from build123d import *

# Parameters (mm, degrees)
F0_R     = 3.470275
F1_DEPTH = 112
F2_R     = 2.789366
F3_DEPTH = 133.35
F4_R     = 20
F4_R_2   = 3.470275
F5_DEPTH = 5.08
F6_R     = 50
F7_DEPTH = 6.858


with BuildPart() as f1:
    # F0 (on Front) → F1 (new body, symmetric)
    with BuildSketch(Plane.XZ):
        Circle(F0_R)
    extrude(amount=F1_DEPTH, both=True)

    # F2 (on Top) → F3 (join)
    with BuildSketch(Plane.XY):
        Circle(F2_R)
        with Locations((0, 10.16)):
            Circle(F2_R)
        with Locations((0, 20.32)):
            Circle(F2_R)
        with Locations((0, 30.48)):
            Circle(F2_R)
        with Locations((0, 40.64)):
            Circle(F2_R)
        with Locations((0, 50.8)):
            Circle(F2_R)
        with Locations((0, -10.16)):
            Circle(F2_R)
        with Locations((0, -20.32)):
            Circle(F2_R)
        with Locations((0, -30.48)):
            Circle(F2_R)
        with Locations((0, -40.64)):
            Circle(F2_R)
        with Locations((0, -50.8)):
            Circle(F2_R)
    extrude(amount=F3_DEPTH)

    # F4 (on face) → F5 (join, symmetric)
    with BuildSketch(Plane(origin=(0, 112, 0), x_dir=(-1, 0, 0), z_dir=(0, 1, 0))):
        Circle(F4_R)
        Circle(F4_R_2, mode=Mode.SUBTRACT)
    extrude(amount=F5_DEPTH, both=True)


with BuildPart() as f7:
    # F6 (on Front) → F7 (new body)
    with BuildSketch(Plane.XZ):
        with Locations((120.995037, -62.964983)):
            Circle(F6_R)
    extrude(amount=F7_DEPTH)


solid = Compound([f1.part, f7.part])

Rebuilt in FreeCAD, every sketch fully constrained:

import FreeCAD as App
import Part
import Sketcher

doc = App.newDocument("Part")
body = doc.addObject("PartDesign::Body", "Body")

sketch1 = body.newObject("Sketcher::SketchObject", "Sketch")
sketch1.AttachmentSupport = (doc.getObject("XZ_Plane"), [""])
sketch1.MapMode = "FlatFace"
sketch1.addGeometry(Part.Circle(App.Vector(0, 0, 0), App.Vector(0, 0, 1), 3.5), False)
sketch1.addConstraint(Sketcher.Constraint("Coincident", 0, 3, -1, 1))
sketch1.addConstraint(Sketcher.Constraint("Diameter", 0, 6.94055))
pad1 = body.newObject("PartDesign::Pad", "Pad")
pad1.Profile = sketch1
pad1.Length = 224
pad1.Midplane = True

sketch2 = body.newObject("Sketcher::SketchObject", "Sketch001")
sketch2.AttachmentSupport = (doc.getObject("XY_Plane"), [""])
sketch2.MapMode = "FlatFace"
sketch2.addGeometry(Part.Circle(App.Vector(0, 0, 0), App.Vector(0, 0, 1), 2.8), False)
sketch2.addGeometry(Part.Circle(App.Vector(0, 10.2, 0), App.Vector(0, 0, 1), 2.8), False)
sketch2.addGeometry(Part.Circle(App.Vector(0, 20.3, 0), App.Vector(0, 0, 1), 2.8), False)
sketch2.addGeometry(Part.Circle(App.Vector(0, 30.5, 0), App.Vector(0, 0, 1), 2.8), False)
sketch2.addGeometry(Part.Circle(App.Vector(0, 40.6, 0), App.Vector(0, 0, 1), 2.8), False)
sketch2.addGeometry(Part.Circle(App.Vector(0, 50.8, 0), App.Vector(0, 0, 1), 2.8), False)
sketch2.addGeometry(Part.Circle(App.Vector(0, -10.2, 0), App.Vector(0, 0, 1), 2.8), False)
sketch2.addGeometry(Part.Circle(App.Vector(0, -20.3, 0), App.Vector(0, 0, 1), 2.8), False)
sketch2.addGeometry(Part.Circle(App.Vector(0, -30.5, 0), App.Vector(0, 0, 1), 2.8), False)
sketch2.addGeometry(Part.Circle(App.Vector(0, -40.6, 0), App.Vector(0, 0, 1), 2.8), False)
sketch2.addGeometry(Part.Circle(App.Vector(0, -50.8, 0), App.Vector(0, 0, 1), 2.8), False)
sketch2.addConstraint(Sketcher.Constraint("Coincident", 0, 3, -1, 1))
sketch2.addConstraint(Sketcher.Constraint("Equal", 0, 1))
sketch2.addConstraint(Sketcher.Constraint("Equal", 1, 2))
sketch2.addConstraint(Sketcher.Constraint("Equal", 2, 3))
sketch2.addConstraint(Sketcher.Constraint("Equal", 3, 4))
sketch2.addConstraint(Sketcher.Constraint("Equal", 4, 5))
sketch2.addConstraint(Sketcher.Constraint("Equal", 5, 6))
sketch2.addConstraint(Sketcher.Constraint("Equal", 6, 7))
sketch2.addConstraint(Sketcher.Constraint("Equal", 7, 8))
sketch2.addConstraint(Sketcher.Constraint("Equal", 8, 9))
sketch2.addConstraint(Sketcher.Constraint("Equal", 9, 10))
sketch2.addConstraint(Sketcher.Constraint("Symmetric", 1, 3, 6, 3, -1, 1))
sketch2.addConstraint(Sketcher.Constraint("Symmetric", 2, 3, 7, 3, -1, 1))
sketch2.addConstraint(Sketcher.Constraint("Symmetric", 3, 3, 8, 3, -1, 1))
sketch2.addConstraint(Sketcher.Constraint("Symmetric", 4, 3, 9, 3, -1, 1))
sketch2.addConstraint(Sketcher.Constraint("Symmetric", 5, 3, 10, 3, -1, 1))
sketch2.addConstraint(Sketcher.Constraint("PointOnObject", 1, 3, -2))
sketch2.addConstraint(Sketcher.Constraint("PointOnObject", 2, 3, -2))
sketch2.addConstraint(Sketcher.Constraint("PointOnObject", 3, 3, -2))
sketch2.addConstraint(Sketcher.Constraint("PointOnObject", 4, 3, -2))
sketch2.addConstraint(Sketcher.Constraint("PointOnObject", 5, 3, -2))
sketch2.addConstraint(Sketcher.Constraint("DistanceY", -1, 1, 5, 3, 50.8))
sketch2.addConstraint(Sketcher.Constraint("DistanceY", 6, 3, 4, 3, 50.8))
sketch2.addConstraint(Sketcher.Constraint("DistanceY", 7, 3, 3, 3, 50.8))
sketch2.addConstraint(Sketcher.Constraint("Diameter", 0, 5.578732))
sketch2.addConstraint(Sketcher.Constraint("DistanceY", -1, 1, 1, 3, 10.16))
sketch2.addConstraint(Sketcher.Constraint("DistanceY", -1, 1, 2, 3, 20.32))
pad2 = body.newObject("PartDesign::Pad", "Pad001")
pad2.Profile = sketch2
pad2.Length = 133.35

sketch3 = body.newObject("Sketcher::SketchObject", "Sketch002")
sketch3.AttachmentSupport = (doc.getObject("XZ_Plane"), [""])
sketch3.MapMode = "FlatFace"
sketch3.AttachmentOffset = App.Placement(App.Vector(0, 0, -112), App.Rotation())
sketch3.addGeometry(Part.Circle(App.Vector(0, 0, 0), App.Vector(0, 0, 1), 20), False)
sketch3.addGeometry(Part.Circle(App.Vector(0, 0, 0), App.Vector(0, 0, 1), 3.5), False)
sketch3.addConstraint(Sketcher.Constraint("Coincident", 0, 3, -1, 1))
sketch3.addConstraint(Sketcher.Constraint("Coincident", 1, 3, -1, 1))
sketch3.addConstraint(Sketcher.Constraint("Diameter", 0, 40.0))
sketch3.addConstraint(Sketcher.Constraint("Diameter", 1, 6.94055))
pad3 = body.newObject("PartDesign::Pad", "Pad002")
pad3.Profile = sketch3
pad3.Length = 10.16
pad3.Midplane = True
body2 = doc.addObject("PartDesign::Body", "Body001")

sketch4 = body2.newObject("Sketcher::SketchObject", "Sketch003")
sketch4.AttachmentSupport = (doc.getObject("XZ_Plane001"), [""])
sketch4.MapMode = "FlatFace"
sketch4.addGeometry(Part.Circle(App.Vector(121, -63, 0), App.Vector(0, 0, 1), 50), False)
sketch4.addConstraint(Sketcher.Constraint("Diameter", 0, 100.0))
sketch4.addConstraint(Sketcher.Constraint("DistanceX", -1, 1, 0, 3, 120.995037))
sketch4.addConstraint(Sketcher.Constraint("DistanceY", 0, 3, -1, 1, 62.964983))
pad4 = body2.newObject("PartDesign::Pad", "Pad003")
pad4.Profile = sketch4
pad4.Length = 6.858

doc.recompute()
